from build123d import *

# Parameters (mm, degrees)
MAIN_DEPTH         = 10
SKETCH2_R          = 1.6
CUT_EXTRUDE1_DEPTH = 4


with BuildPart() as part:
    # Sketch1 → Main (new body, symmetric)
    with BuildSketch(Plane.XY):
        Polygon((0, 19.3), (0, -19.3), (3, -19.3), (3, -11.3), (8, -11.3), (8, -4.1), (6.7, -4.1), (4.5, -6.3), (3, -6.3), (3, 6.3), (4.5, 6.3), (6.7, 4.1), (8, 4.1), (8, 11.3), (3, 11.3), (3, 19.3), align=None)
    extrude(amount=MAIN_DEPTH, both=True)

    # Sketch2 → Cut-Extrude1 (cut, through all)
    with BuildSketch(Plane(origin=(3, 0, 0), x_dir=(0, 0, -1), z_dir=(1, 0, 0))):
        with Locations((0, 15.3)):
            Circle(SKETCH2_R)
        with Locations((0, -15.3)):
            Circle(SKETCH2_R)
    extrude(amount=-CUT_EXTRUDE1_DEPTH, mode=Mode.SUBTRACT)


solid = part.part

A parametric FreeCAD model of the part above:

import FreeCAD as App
import Part
import Sketcher


def add_polygon(sketch, points):
    """Adds a closed chain of lines whose ends are joined by coincident constraints."""
    first, n = sketch.GeometryCount, len(points)
    for a, b in zip(points, points[1:] + points[:1]):
        sketch.addGeometry(Part.LineSegment(App.Vector(*a, 0), App.Vector(*b, 0)), False)
    for i in range(n):
        sketch.addConstraint(Sketcher.Constraint("Coincident", first + i, 2, first + (i + 1) % n, 1))

doc = App.newDocument("Part")
body = doc.addObject("PartDesign::Body", "Body")

# Sketch on XY plane
sketch1 = doc.addObject("Sketcher::SketchObject", "Sketch")
body.addObject(sketch1)
sketch1.AttachmentSupport = (doc.XY_Plane, [""])
sketch1.MapMode = "FlatFace"
add_polygon(sketch1, [(0, 19.3), (0, -19.3), (3, -19.3), (3, -11.3), (8, -11.3), (8, -4.1), (6.7, -4.1), (4.5, -6.3), (3, -6.3), (3, 6.3), (4.5, 6.3), (6.7, 4.1), (8, 4.1), (8, 11.3), (3, 11.3), (3, 19.3)])  # lines 0-15
sketch1.addConstraint(Sketcher.Constraint("Vertical", 0))
sketch1.addConstraint(Sketcher.Constraint("Horizontal", 1))
sketch1.addConstraint(Sketcher.Constraint("Vertical", 2))
sketch1.addConstraint(Sketcher.Constraint("Horizontal", 3))
sketch1.addConstraint(Sketcher.Constraint("Vertical", 4))
sketch1.addConstraint(Sketcher.Constraint("Horizontal", 5))
sketch1.addConstraint(Sketcher.Constraint("Horizontal", 7))
sketch1.addConstraint(Sketcher.Constraint("Vertical", 8))
sketch1.addConstraint(Sketcher.Constraint("Horizontal", 9))
sketch1.addConstraint(Sketcher.Constraint("Horizontal", 11))
sketch1.addConstraint(Sketcher.Constraint("Vertical", 12))
sketch1.addConstraint(Sketcher.Constraint("Horizontal", 13))
sketch1.addConstraint(Sketcher.Constraint("Vertical", 14))
sketch1.addConstraint(Sketcher.Constraint("Horizontal", 15))
sketch1.addConstraint(Sketcher.Constraint("Symmetric", 0, 2, 15, 2, -1, 1))
sketch1.addConstraint(Sketcher.Constraint("Symmetric", 6, 2, 9, 2, -1))
sketch1.addConstraint(Sketcher.Constraint("Symmetric", 5, 2, 10, 2, -1))
sketch1.addConstraint(Sketcher.Constraint("Symmetric", 3, 2, 12, 2, -1))
sketch1.addConstraint(Sketcher.Constraint("Perpendicular", 6, 10))
sketch1.addConstraint(Sketcher.Constraint("Vertical", 2, 2, 7, 2))
sketch1.addConstraint(Sketcher.Constraint("Vertical", 8, 2, 13, 2))
sketch1.addConstraint(Sketcher.Constraint("DistanceX", 1, 1, 1, 2, 3.0))
sketch1.addConstraint(Sketcher.Constraint("DistanceX", 3, 1, 3, 2, 5.0))
sketch1.addConstraint(Sketcher.Constraint("DistanceY", 2, 1, 2, 2, 8.0))
sketch1.addConstraint(Sketcher.Constraint("DistanceX", 5, 2, 5, 1, 1.3))
sketch1.addConstraint(Sketcher.Constraint("DistanceX", 7, 2, 7, 1, 1.5))
sketch1.addConstraint(Sketcher.Constraint("DistanceY", 0, 2, 0, 1, 38.6))
sketch1.addConstraint(Sketcher.Constraint("DistanceY", 4, 1, 4, 2, 7.2))
pad1 = doc.addObject("PartDesign::Pad", "Pad")
body.addObject(pad1)
pad1.Profile = sketch1
pad1.Length = 20
pad1.Midplane = True

# Sketch on YZ plane
sketch2 = doc.addObject("Sketcher::SketchObject", "Sketch001")
body.addObject(sketch2)
sketch2.AttachmentSupport = (doc.YZ_Plane, [""])
sketch2.MapMode = "FlatFace"
sketch2.AttachmentOffset = App.Placement(App.Vector(0, 0, 3), App.Rotation())
sketch2.addGeometry(Part.Circle(App.Vector(15.3, 0, 0), App.Vector(0, 0, 1), 1.6), False)
sketch2.addGeometry(Part.Circle(App.Vector(-15.3, 0, 0), App.Vector(0, 0, 1), 1.6), False)
sketch2.addConstraint(Sketcher.Constraint("Equal", 0, 1))
sketch2.addConstraint(Sketcher.Constraint("Symmetric", 0, 3, 1, 3, -1, 1))
sketch2.addConstraint(Sketcher.Constraint("PointOnObject", 0, 3, -1))
sketch2.addConstraint(Sketcher.Constraint("Diameter", 0, 3.2))
sketch2.addConstraint(Sketcher.Constraint("DistanceX", -1, 1, 0, 3, 15.3))
pocket1 = doc.addObject("PartDesign::Pocket", "Pocket")
body.addObject(pocket1)
pocket1.Profile = sketch2
pocket1.Type = "ThroughAll"

doc.recompute()
